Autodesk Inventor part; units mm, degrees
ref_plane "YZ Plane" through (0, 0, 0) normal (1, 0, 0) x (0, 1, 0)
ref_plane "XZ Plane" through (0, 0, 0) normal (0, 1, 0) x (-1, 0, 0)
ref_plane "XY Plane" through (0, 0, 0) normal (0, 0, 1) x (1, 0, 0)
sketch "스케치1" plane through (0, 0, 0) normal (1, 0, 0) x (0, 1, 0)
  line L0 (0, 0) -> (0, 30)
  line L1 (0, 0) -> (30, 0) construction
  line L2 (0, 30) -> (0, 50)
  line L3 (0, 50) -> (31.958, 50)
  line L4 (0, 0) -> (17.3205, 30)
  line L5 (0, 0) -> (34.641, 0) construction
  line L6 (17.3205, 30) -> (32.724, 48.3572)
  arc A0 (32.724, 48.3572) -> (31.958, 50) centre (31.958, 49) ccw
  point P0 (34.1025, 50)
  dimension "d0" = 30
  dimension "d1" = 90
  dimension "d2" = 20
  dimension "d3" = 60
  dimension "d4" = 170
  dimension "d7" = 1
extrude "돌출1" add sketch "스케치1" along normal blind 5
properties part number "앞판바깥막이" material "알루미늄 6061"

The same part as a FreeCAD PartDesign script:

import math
import FreeCAD as App
import Part
import Sketcher

V = App.Vector
Q = App.Units.Quantity

doc = App.newDocument("Part")
params = doc.addObject("Spreadsheet::Sheet", "Params")
for row, (alias, value) in enumerate([
    ("sketch1_radius", "1 mm"),
    ("pad1_length", "5 mm"),
], start=1):
    params.set(f"A{row}", alias)
    params.set(f"B{row}", "=" + value)
    params.setAlias(f"B{row}", alias)

body = doc.addObject("PartDesign::Body", "Body")

sketch1 = body.newObject("Sketcher::SketchObject", "Sketch")
sketch1.AttachmentSupport = (doc.getObject("YZ_Plane"), [""])
sketch1.MapMode = "FlatFace"
sketch1.addGeometry(Part.LineSegment(V(0, 50, 0), V(0, 0, 0)), False)
sketch1.addGeometry(Part.LineSegment(V(0, 0, 0), V(17.3, 30, 0)), False)
sketch1.addGeometry(Part.LineSegment(V(17.3, 30, 0), V(32.7, 48.4, 0)), False)
sketch1.addGeometry(Part.ArcOfCircle(Part.Circle(V(32, 49, 0), V(0, 0, 1), 1), math.radians(-40), math.radians(90)), False)
sketch1.addGeometry(Part.LineSegment(V(32, 50, 0), V(0, 50, 0)), False)
sketch1.addConstraint(Sketcher.Constraint("Coincident", 0, 2, 1, 1))
sketch1.addConstraint(Sketcher.Constraint("Coincident", 1, 2, 2, 1))
sketch1.addConstraint(Sketcher.Constraint("Tangent", 2, 2, 3, 1))
sketch1.addConstraint(Sketcher.Constraint("Tangent", 3, 2, 4, 1))
sketch1.addConstraint(Sketcher.Constraint("Coincident", 4, 2, 0, 1))
sketch1.addConstraint(Sketcher.Constraint("Vertical", 0))
sketch1.addConstraint(Sketcher.Constraint("Horizontal", 4))
sketch1.addConstraint(Sketcher.Constraint("Coincident", 0, 2, -1, 1))
sketch1.addConstraint(Sketcher.Constraint("Radius", 3, Q("1 mm")))
sketch1.addConstraint(Sketcher.Constraint("Angle", 1, Q("60 deg")))
sketch1.addConstraint(Sketcher.Constraint("DistanceY", -1, 1, 1, 2, Q("30 mm")))
sketch1.addConstraint(Sketcher.Constraint("DistanceY", 1, 2, 3, 2, Q("20 mm")))
sketch1.addConstraint(Sketcher.Constraint("Angle", 2, Q("50 deg")))
sketch1.setExpression("Constraints[8]", "Params.sketch1_radius")
pad1 = body.newObject("PartDesign::Pad", "Pad")
pad1.Profile = sketch1
pad1.setExpression("Length", "Params.pad1_length")

doc.recompute()
